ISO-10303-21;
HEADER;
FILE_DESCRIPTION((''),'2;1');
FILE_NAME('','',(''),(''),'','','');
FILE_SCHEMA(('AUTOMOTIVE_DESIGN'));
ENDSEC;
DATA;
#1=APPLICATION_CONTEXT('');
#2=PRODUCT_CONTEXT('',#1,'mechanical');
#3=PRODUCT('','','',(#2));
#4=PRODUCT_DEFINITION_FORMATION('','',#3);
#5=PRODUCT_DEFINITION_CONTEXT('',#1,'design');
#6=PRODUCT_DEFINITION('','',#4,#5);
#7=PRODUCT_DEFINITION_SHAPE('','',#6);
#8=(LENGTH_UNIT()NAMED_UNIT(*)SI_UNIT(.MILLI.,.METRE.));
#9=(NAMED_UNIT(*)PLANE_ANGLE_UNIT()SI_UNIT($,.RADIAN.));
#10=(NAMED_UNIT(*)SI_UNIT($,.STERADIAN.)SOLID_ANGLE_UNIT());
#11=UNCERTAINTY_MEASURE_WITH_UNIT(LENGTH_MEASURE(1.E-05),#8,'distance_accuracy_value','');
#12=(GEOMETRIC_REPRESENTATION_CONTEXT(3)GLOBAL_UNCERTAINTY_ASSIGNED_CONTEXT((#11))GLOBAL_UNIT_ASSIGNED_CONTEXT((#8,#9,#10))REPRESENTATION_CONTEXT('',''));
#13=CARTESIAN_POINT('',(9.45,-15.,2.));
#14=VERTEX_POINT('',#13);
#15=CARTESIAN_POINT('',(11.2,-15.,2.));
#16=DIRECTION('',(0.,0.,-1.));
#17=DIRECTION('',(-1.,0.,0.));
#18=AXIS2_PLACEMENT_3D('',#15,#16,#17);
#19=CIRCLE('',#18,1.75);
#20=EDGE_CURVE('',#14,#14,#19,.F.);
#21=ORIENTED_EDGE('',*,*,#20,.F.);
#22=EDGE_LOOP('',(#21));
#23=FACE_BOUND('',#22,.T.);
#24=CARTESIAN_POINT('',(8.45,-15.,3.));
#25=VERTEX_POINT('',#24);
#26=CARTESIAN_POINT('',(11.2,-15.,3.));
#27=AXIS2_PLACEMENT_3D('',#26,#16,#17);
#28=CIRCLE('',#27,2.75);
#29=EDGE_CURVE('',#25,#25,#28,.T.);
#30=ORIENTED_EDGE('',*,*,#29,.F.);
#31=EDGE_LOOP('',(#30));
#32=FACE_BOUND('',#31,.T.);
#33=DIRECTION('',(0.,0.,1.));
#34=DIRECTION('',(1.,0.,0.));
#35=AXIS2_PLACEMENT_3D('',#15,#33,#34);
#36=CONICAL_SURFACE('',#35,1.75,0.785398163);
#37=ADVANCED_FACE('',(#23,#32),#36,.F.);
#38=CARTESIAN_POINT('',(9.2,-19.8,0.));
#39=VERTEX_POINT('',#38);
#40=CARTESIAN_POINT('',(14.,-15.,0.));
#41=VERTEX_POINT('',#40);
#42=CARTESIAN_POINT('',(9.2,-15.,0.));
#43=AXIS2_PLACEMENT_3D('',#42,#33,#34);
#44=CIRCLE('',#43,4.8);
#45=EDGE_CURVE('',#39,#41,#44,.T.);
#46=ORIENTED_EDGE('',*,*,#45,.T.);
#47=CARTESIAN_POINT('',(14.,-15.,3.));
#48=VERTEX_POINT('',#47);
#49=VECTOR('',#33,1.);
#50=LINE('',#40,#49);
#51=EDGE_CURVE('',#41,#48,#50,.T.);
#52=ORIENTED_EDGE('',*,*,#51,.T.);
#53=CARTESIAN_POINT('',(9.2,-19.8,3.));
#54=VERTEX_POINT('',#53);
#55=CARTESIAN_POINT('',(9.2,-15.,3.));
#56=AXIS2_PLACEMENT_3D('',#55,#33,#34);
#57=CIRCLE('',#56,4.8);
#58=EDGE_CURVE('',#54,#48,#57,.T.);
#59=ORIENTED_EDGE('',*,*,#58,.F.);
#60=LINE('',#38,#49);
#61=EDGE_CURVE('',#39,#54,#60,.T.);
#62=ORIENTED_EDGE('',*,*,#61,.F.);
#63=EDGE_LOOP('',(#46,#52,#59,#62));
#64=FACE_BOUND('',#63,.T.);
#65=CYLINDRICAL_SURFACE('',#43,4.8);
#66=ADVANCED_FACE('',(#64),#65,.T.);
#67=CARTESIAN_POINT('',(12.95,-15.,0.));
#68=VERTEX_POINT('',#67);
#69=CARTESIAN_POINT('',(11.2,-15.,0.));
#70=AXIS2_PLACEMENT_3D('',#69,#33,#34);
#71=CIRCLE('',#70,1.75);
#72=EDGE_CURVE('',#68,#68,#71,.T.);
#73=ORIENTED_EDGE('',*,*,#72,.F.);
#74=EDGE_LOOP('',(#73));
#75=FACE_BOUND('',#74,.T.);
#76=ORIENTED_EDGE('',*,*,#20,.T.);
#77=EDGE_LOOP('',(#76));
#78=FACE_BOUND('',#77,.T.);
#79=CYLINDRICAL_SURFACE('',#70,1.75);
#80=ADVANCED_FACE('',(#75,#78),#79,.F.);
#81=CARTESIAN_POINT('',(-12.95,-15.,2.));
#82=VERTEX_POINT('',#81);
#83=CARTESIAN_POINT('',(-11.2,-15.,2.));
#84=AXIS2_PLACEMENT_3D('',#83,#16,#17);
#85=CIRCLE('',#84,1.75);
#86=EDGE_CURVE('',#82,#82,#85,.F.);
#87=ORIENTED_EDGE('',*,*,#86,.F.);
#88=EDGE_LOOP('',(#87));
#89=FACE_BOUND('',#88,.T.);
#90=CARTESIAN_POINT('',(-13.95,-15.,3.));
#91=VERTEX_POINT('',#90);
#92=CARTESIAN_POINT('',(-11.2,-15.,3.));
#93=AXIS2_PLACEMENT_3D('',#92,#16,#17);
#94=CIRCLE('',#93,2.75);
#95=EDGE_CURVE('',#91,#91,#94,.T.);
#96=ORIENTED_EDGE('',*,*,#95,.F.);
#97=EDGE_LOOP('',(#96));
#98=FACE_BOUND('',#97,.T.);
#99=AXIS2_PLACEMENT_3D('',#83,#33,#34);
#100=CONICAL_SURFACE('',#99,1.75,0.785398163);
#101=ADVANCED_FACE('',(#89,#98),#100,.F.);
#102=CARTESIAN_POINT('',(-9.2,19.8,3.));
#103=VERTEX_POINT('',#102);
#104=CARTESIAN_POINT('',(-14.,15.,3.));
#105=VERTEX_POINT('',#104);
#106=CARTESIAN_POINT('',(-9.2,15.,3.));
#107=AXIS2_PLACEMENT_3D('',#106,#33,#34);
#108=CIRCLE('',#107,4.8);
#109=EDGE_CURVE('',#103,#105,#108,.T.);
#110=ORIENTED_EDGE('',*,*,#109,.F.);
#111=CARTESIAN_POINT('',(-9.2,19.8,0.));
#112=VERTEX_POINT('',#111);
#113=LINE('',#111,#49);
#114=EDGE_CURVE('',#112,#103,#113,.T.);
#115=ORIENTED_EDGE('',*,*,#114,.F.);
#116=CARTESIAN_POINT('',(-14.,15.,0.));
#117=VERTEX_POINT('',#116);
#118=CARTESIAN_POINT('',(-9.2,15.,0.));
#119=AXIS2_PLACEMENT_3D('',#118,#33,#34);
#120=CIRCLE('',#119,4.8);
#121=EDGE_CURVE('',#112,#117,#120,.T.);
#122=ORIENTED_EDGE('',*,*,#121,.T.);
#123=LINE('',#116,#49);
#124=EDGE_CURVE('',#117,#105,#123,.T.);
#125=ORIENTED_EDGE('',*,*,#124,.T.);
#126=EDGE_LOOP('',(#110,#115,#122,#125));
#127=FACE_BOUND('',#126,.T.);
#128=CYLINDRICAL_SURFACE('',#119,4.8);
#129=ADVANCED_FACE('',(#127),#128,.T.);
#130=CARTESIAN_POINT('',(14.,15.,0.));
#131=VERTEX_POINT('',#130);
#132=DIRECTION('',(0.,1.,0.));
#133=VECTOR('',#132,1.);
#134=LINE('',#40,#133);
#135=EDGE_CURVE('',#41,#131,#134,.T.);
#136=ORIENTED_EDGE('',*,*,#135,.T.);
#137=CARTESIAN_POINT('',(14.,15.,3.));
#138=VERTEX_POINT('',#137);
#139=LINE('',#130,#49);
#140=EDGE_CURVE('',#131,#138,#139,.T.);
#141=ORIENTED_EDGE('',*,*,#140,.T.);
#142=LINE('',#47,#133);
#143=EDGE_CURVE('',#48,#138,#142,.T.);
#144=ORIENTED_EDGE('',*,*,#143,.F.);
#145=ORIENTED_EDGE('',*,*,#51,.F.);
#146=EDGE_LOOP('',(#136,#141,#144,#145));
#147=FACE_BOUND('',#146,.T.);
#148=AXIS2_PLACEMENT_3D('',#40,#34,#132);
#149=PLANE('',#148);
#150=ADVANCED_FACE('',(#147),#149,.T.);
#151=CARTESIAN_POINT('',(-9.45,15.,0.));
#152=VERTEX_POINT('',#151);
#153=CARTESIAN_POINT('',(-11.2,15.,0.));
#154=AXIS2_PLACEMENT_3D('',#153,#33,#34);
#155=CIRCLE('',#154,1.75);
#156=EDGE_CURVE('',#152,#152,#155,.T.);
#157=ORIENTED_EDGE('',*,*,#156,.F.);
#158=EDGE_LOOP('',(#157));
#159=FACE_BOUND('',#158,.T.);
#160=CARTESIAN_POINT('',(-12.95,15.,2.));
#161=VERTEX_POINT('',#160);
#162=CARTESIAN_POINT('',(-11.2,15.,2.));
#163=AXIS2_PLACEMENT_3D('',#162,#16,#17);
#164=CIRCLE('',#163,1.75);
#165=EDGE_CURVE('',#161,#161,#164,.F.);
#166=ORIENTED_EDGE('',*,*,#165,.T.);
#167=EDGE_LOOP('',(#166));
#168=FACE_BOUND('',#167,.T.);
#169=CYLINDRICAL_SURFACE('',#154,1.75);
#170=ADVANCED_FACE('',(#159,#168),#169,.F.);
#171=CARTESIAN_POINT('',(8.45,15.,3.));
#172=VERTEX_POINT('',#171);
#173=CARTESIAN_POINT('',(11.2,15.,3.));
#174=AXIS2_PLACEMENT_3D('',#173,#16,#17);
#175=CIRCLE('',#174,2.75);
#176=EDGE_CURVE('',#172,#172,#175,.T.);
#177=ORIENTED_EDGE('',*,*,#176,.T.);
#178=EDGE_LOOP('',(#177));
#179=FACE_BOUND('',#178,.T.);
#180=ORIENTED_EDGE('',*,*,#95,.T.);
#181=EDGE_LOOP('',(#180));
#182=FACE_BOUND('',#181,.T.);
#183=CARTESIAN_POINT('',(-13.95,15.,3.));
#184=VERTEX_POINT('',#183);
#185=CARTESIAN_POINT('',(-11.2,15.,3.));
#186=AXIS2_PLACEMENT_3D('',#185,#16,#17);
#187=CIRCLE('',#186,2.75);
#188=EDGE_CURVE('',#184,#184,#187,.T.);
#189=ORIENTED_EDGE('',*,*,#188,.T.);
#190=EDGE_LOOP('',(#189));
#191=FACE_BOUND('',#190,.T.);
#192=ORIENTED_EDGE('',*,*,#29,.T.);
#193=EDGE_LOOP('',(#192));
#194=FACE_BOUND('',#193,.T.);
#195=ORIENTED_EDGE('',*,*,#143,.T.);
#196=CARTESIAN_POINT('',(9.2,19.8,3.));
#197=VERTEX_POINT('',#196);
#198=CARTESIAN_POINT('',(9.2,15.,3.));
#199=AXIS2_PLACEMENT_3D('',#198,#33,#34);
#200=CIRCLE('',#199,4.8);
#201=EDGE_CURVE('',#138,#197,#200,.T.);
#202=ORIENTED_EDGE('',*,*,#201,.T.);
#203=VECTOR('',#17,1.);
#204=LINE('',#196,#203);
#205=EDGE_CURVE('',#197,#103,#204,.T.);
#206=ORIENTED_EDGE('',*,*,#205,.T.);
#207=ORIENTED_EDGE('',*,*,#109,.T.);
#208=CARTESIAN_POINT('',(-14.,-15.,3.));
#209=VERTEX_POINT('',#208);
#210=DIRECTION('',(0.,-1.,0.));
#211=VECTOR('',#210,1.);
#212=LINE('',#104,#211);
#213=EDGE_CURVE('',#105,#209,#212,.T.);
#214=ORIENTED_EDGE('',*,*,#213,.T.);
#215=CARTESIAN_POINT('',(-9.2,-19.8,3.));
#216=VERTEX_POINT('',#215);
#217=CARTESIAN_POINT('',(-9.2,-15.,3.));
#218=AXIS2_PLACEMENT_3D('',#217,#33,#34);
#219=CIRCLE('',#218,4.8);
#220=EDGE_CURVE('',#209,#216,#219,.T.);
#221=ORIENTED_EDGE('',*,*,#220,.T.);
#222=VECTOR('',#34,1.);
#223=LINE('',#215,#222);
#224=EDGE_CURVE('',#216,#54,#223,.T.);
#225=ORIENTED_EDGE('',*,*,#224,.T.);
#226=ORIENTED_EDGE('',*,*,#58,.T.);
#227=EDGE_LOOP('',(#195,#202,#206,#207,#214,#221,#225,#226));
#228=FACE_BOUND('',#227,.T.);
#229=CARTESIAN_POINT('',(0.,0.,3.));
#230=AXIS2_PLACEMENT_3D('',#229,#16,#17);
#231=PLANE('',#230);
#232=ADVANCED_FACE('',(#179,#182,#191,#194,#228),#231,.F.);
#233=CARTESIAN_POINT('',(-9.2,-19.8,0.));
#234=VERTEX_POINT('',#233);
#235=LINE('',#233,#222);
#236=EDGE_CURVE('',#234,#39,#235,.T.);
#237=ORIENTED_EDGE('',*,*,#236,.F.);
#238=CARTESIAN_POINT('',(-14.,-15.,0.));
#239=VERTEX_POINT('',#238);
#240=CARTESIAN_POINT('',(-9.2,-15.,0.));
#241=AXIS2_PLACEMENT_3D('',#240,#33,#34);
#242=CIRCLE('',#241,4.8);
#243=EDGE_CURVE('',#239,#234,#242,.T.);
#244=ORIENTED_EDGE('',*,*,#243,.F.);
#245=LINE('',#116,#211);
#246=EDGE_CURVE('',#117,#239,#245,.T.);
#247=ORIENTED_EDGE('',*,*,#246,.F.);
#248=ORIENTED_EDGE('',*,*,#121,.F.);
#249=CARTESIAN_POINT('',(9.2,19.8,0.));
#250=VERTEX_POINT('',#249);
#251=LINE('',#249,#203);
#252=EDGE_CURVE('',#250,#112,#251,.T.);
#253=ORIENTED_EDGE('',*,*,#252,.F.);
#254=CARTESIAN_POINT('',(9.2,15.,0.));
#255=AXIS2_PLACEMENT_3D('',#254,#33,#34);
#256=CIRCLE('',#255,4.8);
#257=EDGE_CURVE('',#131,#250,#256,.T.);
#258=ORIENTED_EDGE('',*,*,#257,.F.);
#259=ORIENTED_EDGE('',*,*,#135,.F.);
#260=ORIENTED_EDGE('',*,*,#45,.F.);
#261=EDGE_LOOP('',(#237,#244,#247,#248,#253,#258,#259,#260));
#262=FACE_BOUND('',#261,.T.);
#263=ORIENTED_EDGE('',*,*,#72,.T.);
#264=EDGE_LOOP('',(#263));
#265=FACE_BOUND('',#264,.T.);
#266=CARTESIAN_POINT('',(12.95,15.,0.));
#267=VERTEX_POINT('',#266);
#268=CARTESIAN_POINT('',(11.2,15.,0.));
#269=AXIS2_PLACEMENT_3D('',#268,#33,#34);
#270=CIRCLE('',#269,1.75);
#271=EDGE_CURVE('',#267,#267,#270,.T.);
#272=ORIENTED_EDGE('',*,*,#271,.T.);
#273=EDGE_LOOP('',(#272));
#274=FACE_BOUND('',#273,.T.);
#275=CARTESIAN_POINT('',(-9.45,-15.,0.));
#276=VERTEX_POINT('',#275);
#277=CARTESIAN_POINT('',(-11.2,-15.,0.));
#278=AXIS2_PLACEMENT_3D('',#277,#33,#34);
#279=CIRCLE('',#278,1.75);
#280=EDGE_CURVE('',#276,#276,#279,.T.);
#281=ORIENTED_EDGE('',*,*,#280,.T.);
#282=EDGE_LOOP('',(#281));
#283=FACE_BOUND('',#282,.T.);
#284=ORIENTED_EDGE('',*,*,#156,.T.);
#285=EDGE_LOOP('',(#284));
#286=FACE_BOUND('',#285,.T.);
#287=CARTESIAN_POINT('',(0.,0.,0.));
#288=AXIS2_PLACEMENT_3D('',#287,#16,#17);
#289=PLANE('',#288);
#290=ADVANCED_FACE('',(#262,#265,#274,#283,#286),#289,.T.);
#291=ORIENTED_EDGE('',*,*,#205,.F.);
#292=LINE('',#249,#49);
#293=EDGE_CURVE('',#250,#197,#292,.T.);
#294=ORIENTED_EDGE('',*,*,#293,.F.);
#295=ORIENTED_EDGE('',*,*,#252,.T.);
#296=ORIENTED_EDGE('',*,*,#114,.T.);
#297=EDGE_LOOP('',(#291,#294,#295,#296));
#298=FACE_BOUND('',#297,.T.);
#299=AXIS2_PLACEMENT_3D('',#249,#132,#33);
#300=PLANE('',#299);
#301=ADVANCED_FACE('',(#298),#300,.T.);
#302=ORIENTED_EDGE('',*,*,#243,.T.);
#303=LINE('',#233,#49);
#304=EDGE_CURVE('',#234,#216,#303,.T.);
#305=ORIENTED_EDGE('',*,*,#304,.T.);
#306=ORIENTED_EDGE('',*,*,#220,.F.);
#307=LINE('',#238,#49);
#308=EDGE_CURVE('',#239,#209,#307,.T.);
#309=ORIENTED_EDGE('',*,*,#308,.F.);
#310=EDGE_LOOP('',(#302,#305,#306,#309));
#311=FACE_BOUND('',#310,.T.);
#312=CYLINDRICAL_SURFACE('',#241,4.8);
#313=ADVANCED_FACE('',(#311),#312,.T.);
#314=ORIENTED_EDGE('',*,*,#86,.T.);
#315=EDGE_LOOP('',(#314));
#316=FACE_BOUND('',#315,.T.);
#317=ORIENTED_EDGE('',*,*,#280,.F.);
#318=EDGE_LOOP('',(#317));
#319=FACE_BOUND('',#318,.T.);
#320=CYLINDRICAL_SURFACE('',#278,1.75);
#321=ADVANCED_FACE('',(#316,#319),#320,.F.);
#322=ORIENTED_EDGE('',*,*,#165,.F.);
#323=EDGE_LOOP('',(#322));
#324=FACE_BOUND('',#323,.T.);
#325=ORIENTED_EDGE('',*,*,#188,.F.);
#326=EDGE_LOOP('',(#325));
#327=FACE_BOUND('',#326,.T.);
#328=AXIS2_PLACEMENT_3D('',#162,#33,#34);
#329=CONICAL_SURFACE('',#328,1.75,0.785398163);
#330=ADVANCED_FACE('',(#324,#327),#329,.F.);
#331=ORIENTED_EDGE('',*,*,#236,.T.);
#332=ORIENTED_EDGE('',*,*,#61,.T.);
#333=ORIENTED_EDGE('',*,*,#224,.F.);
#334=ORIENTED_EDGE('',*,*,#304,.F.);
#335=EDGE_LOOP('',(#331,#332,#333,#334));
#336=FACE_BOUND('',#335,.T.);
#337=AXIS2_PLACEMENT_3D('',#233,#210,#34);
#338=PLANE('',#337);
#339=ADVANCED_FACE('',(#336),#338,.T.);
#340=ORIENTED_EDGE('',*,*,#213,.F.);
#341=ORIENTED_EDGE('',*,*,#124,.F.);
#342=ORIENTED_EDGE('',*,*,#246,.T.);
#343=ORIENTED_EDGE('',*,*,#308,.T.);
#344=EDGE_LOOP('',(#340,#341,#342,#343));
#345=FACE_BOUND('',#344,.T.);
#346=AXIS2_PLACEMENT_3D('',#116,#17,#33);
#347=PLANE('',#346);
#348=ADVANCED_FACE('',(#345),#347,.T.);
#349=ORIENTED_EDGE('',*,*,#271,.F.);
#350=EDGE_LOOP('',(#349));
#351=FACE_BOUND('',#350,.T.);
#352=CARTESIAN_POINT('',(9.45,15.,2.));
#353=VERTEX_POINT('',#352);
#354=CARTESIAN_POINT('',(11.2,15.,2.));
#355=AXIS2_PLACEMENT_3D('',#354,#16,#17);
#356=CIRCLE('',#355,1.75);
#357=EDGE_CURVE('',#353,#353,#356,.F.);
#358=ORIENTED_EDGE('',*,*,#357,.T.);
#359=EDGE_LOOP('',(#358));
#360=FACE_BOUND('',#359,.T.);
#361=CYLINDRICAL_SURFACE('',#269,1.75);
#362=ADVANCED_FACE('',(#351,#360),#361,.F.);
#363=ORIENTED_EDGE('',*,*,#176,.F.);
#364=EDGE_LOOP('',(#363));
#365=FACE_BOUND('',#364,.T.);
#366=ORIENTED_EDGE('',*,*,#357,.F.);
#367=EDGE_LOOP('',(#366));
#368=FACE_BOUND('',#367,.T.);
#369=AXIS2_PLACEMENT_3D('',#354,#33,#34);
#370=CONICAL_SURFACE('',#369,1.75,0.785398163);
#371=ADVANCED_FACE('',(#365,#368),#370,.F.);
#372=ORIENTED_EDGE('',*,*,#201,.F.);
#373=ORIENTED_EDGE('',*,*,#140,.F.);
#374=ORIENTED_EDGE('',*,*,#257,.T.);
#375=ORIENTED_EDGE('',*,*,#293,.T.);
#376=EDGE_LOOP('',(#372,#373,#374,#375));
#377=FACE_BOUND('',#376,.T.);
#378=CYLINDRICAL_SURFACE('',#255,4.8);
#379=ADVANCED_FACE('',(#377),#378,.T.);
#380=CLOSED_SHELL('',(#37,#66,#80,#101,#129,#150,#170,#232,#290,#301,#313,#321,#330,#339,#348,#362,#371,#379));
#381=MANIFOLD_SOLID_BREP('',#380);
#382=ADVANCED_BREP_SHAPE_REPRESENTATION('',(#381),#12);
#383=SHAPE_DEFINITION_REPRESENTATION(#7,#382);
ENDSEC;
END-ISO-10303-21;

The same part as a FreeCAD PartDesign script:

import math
import FreeCAD as App
import Part
import Sketcher

V = App.Vector


def edges_at(feature, points):
    """Names of the edges that pass closest to the given points."""
    edges = feature.Shape.Edges
    near = lambda p: min(range(len(edges)), key=lambda i: edges[i].distToShape(Part.Vertex(*p))[0])
    return sorted({f"Edge{near(p) + 1}" for p in points})


def add_polygon(sketch, points):
    """Adds a closed chain of lines whose ends are joined by coincident constraints."""
    first, n = sketch.GeometryCount, len(points)
    for a, b in zip(points, points[1:] + points[:1]):
        sketch.addGeometry(Part.LineSegment(App.Vector(*a, 0), App.Vector(*b, 0)), False)
    for i in range(n):
        sketch.addConstraint(Sketcher.Constraint("Coincident", first + i, 2, first + (i + 1) % n, 1))

doc = App.newDocument("Part")
body = doc.addObject("PartDesign::Body", "Body")

sketch1 = doc.addObject("Sketcher::SketchObject", "Sketch")
body.addObject(sketch1)
sketch1.AttachmentSupport = (doc.XY_Plane, [""])
sketch1.MapMode = "FlatFace"
add_polygon(sketch1, [(-14.2, 20), (-14.2, -20), (14.2, -20), (14.2, 20)])
sketch1.addConstraint(Sketcher.Constraint("Vertical", 0))
sketch1.addConstraint(Sketcher.Constraint("Horizontal", 1))
sketch1.addConstraint(Sketcher.Constraint("Vertical", 2))
sketch1.addConstraint(Sketcher.Constraint("Horizontal", 3))
sketch1.addConstraint(Sketcher.Constraint("Symmetric", 0, 2, 2, 2, -1, 1))
sketch1.addConstraint(Sketcher.Constraint("DistanceY", 0, 2, 0, 1, 40.0))
sketch1.addConstraint(Sketcher.Constraint("DistanceX", 1, 1, 1, 2, 28.4))
pad1 = doc.addObject("PartDesign::Pad", "Pad")
body.addObject(pad1)
pad1.Profile = sketch1
pad1.Length = 3
doc.recompute()

fillet = doc.addObject("PartDesign::Fillet", "Fillet")
body.addObject(fillet)
fillet.Base = (pad1, edges_at(pad1, [
    (14.2, -20, 1.5),
    (-14.2, -20, 1.5),
    (-14.2, 20, 1.5),
    (14.2, 20, 1.5),
]))
fillet.Radius = 5

sketch2 = doc.addObject("Sketcher::SketchObject", "Sketch001")
body.addObject(sketch2)
sketch2.AttachmentSupport = (doc.XY_Plane, [""])
sketch2.MapMode = "FlatFace"
sketch2.AttachmentOffset = App.Placement(V(0, 0, 3), App.Rotation())
sketch2.addGeometry(Part.Circle(V(-11.2, 15, 0), V(0, 0, 1), 1.75), False)
sketch2.addGeometry(Part.Circle(V(11.2, 15, 0), V(0, 0, 1), 1.75), False)
sketch2.addGeometry(Part.Circle(V(-11.2, -15, 0), V(0, 0, 1), 1.75), False)
sketch2.addGeometry(Part.Circle(V(11.2, -15, 0), V(0, 0, 1), 1.75), False)
sketch2.addConstraint(Sketcher.Constraint("Equal", 0, 1))
sketch2.addConstraint(Sketcher.Constraint("Equal", 1, 2))
sketch2.addConstraint(Sketcher.Constraint("Equal", 2, 3))
sketch2.addConstraint(Sketcher.Constraint("Symmetric", 1, 3, 2, 3, -1, 1))
sketch2.addConstraint(Sketcher.Constraint("Symmetric", 0, 3, 3, 3, -1, 1))
sketch2.addConstraint(Sketcher.Constraint("Symmetric", 0, 3, 1, 3, -2))
sketch2.addConstraint(Sketcher.Constraint("Diameter", 0, 3.5))
sketch2.addConstraint(Sketcher.Constraint("DistanceY", -1, 1, 0, 3, 15.0))
sketch2.addConstraint(Sketcher.Constraint("DistanceX", 0, 3, -1, 1, 11.2))
pocket1 = doc.addObject("PartDesign::Pocket", "Pocket")
body.addObject(pocket1)
pocket1.Profile = sketch2
pocket1.Length = 3
doc.recompute()

chamfer = doc.addObject("PartDesign::Chamfer", "Chamfer")
body.addObject(chamfer)
chamfer.Base = (pocket1, edges_at(pocket1, [
    (9.45, 15, 3),
    (-12.95, -15, 3),
    (9.45, -15, 3),
    (-12.95, 15, 3),
]))
chamfer.Size = 1

sketch3 = doc.addObject("Sketcher::SketchObject", "Sketch002")
body.addObject(sketch3)
sketch3.AttachmentSupport = (doc.XY_Plane, [""])
sketch3.MapMode = "FlatFace"
sketch3.AttachmentOffset = App.Placement(V(0, 0, 3), App.Rotation())
sketch3.addGeometry(Part.LineSegment(V(-14.2, 15, 0), V(-14.2, -15, 0)), False)
sketch3.addGeometry(Part.ArcOfCircle(Part.Circle(V(-9.2, -15, 0), V(0, 0, 1), 5), math.radians(180), math.radians(270)), False)
sketch3.addGeometry(Part.LineSegment(V(-9.2, -20, 0), V(9.2, -20, 0)), False)
sketch3.addGeometry(Part.ArcOfCircle(Part.Circle(V(9.2, -15, 0), V(0, 0, 1), 5), math.radians(-90), math.radians(0)), False)
sketch3.addGeometry(Part.LineSegment(V(14.2, -15, 0), V(14.2, 15, 0)), False)
sketch3.addGeometry(Part.ArcOfCircle(Part.Circle(V(9.2, 15, 0), V(0, 0, 1), 5), math.radians(0), math.radians(90)), False)
sketch3.addGeometry(Part.LineSegment(V(9.2, 20, 0), V(-9.2, 20, 0)), False)
sketch3.addGeometry(Part.ArcOfCircle(Part.Circle(V(-9.2, 15, 0), V(0, 0, 1), 5), math.radians(90), math.radians(180)), False)
sketch3.addGeometry(Part.LineSegment(V(-9.2, 19.8, 0), V(9.2, 19.8, 0)), False)
sketch3.addGeometry(Part.ArcOfCircle(Part.Circle(V(9.2, 15, 0), V(0, 0, 1), 4.8), math.radians(0), math.radians(90)), False)
sketch3.addGeometry(Part.LineSegment(V(14, 15, 0), V(14, -15, 0)), False)
sketch3.addGeometry(Part.ArcOfCircle(Part.Circle(V(9.2, -15, 0), V(0, 0, 1), 4.8), math.radians(-90), math.radians(0)), False)
sketch3.addGeometry(Part.LineSegment(V(9.2, -19.8, 0), V(-9.2, -19.8, 0)), False)
sketch3.addGeometry(Part.ArcOfCircle(Part.Circle(V(-9.2, -15, 0), V(0, 0, 1), 4.8), math.radians(180), math.radians(270)), False)
sketch3.addGeometry(Part.LineSegment(V(-14, -15, 0), V(-14, 15, 0)), False)
sketch3.addGeometry(Part.ArcOfCircle(Part.Circle(V(-9.2, 15, 0), V(0, 0, 1), 4.8), math.radians(90), math.radians(180)), False)
sketch3.addConstraint(Sketcher.Constraint("Tangent", 0, 2, 1, 1))
sketch3.addConstraint(Sketcher.Constraint("Tangent", 1, 2, 2, 1))
sketch3.addConstraint(Sketcher.Constraint("Tangent", 2, 2, 3, 1))
sketch3.addConstraint(Sketcher.Constraint("Tangent", 3, 2, 4, 1))
sketch3.addConstraint(Sketcher.Constraint("Tangent", 4, 2, 5, 1))
sketch3.addConstraint(Sketcher.Constraint("Tangent", 5, 2, 6, 1))
sketch3.addConstraint(Sketcher.Constraint("Tangent", 6, 2, 7, 1))
sketch3.addConstraint(Sketcher.Constraint("Tangent", 7, 2, 0, 1))
sketch3.addConstraint(Sketcher.Constraint("Tangent", 8, 2, 9, 2))
sketch3.addConstraint(Sketcher.Constraint("Tangent", 9, 1, 10, 1))
sketch3.addConstraint(Sketcher.Constraint("Tangent", 10, 2, 11, 2))
sketch3.addConstraint(Sketcher.Constraint("Tangent", 11, 1, 12, 1))
sketch3.addConstraint(Sketcher.Constraint("Tangent", 12, 2, 13, 2))
sketch3.addConstraint(Sketcher.Constraint("Tangent", 13, 1, 14, 1))
sketch3.addConstraint(Sketcher.Constraint("Tangent", 14, 2, 15, 2))
sketch3.addConstraint(Sketcher.Constraint("Tangent", 15, 1, 8, 1))
sketch3.addConstraint(Sketcher.Constraint("Vertical", 0))
sketch3.addConstraint(Sketcher.Constraint("Horizontal", 2))
sketch3.addConstraint(Sketcher.Constraint("Vertical", 4))
sketch3.addConstraint(Sketcher.Constraint("Horizontal", 6))
sketch3.addConstraint(Sketcher.Constraint("Horizontal", 8))
sketch3.addConstraint(Sketcher.Constraint("Vertical", 10))
sketch3.addConstraint(Sketcher.Constraint("Horizontal", 12))
sketch3.addConstraint(Sketcher.Constraint("Vertical", 14))
sketch3.addConstraint(Sketcher.Constraint("Coincident", 9, 3, 5, 3))
sketch3.addConstraint(Sketcher.Constraint("Coincident", 11, 3, 3, 3))
sketch3.addConstraint(Sketcher.Constraint("Coincident", 13, 3, 1, 3))
sketch3.addConstraint(Sketcher.Constraint("Equal", 1, 3))
sketch3.addConstraint(Sketcher.Constraint("Equal", 3, 5))
sketch3.addConstraint(Sketcher.Constraint("Equal", 5, 7))
sketch3.addConstraint(Sketcher.Constraint("Equal", 13, 15))
sketch3.addConstraint(Sketcher.Constraint("Symmetric", 1, 3, 5, 3, -1, 1))
sketch3.addConstraint(Sketcher.Constraint("Radius", 1, 5.0))
sketch3.addConstraint(Sketcher.Constraint("Radius", 9, 4.8))
sketch3.addConstraint(Sketcher.Constraint("DistanceY", 0, 2, 0, 1, 30.0))
sketch3.addConstraint(Sketcher.Constraint("DistanceX", 2, 1, 2, 2, 18.4))
pocket2 = doc.addObject("PartDesign::Pocket", "Pocket001")
body.addObject(pocket2)
pocket2.Profile = sketch3
pocket2.Length = 3

doc.recompute()
